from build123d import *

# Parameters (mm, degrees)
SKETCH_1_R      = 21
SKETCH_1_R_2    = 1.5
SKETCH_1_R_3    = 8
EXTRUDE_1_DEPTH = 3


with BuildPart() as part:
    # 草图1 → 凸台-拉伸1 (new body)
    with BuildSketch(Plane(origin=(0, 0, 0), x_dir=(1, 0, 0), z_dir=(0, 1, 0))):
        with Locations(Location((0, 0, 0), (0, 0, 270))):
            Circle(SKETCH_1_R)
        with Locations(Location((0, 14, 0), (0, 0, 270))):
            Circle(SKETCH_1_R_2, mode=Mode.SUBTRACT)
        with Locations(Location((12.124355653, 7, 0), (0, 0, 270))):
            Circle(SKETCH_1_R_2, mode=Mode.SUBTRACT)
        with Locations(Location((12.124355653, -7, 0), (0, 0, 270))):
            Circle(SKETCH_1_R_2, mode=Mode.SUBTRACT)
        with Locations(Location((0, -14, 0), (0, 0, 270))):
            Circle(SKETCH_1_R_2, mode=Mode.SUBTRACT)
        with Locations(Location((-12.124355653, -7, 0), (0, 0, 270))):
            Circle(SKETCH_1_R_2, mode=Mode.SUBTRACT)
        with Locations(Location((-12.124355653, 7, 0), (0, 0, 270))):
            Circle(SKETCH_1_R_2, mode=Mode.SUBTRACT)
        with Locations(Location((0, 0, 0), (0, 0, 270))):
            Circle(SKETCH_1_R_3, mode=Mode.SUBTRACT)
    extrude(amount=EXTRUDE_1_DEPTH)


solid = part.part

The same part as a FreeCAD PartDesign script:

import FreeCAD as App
import Part
import Sketcher

V = App.Vector
Q = App.Units.Quantity

doc = App.newDocument("Part")
body = doc.addObject("PartDesign::Body", "Body")

sketch1 = body.newObject("Sketcher::SketchObject", "Sketch")
sketch1.AttachmentSupport = (doc.getObject("XZ_Plane"), [""])
sketch1.MapMode = "FlatFace"
sketch1.addGeometry([
    Part.Circle(V(0, 0, 0), V(0, 0, 1), 21),
    Part.Circle(V(-12.1, -7, 0), V(0, 0, 1), 1.5),
    Part.Circle(V(0, -14, 0), V(0, 0, 1), 1.5),
    Part.Circle(V(-12.1, 7, 0), V(0, 0, 1), 1.5),
    Part.Circle(V(12.1, -7, 0), V(0, 0, 1), 1.5),
    Part.Circle(V(0, 0, 0), V(0, 0, 1), 8),
    Part.Circle(V(0, 14, 0), V(0, 0, 1), 1.5),
    Part.Circle(V(12.1, 7, 0), V(0, 0, 1), 1.5),
], False)
sketch1.addConstraint([
    Sketcher.Constraint("Coincident", 0, 3, -1, 1),
    Sketcher.Constraint("Coincident", 5, 3, -1, 1),
    Sketcher.Constraint("Equal", 1, 2),
    Sketcher.Constraint("Equal", 2, 3),
    Sketcher.Constraint("Equal", 3, 4),
    Sketcher.Constraint("Equal", 4, 6),
    Sketcher.Constraint("Equal", 6, 7),
    Sketcher.Constraint("Symmetric", 3, 3, 4, 3, -1, 1),
    Sketcher.Constraint("Symmetric", 2, 3, 6, 3, -1, 1),
    Sketcher.Constraint("Symmetric", 1, 3, 7, 3, -1, 1),
    Sketcher.Constraint("Symmetric", 1, 3, 4, 3, -2),
    Sketcher.Constraint("PointOnObject", 2, 3, -2),
    Sketcher.Constraint("Diameter", 0, Q("42 mm")),
    Sketcher.Constraint("Diameter", 1, Q("3 mm")),
    Sketcher.Constraint("Diameter", 5, Q("16 mm")),
    Sketcher.Constraint("DistanceY", 1, 3, -1, 1, Q("7 mm")),
    Sketcher.Constraint("DistanceY", 2, 3, -1, 1, Q("14 mm")),
    Sketcher.Constraint("DistanceX", 1, 3, 4, 3, Q("24.248711 mm")),
])
pad1 = body.newObject("PartDesign::Pad", "Pad")
pad1.Profile = sketch1
pad1.Length = 3
pad1.Reversed = True

doc.recompute()
